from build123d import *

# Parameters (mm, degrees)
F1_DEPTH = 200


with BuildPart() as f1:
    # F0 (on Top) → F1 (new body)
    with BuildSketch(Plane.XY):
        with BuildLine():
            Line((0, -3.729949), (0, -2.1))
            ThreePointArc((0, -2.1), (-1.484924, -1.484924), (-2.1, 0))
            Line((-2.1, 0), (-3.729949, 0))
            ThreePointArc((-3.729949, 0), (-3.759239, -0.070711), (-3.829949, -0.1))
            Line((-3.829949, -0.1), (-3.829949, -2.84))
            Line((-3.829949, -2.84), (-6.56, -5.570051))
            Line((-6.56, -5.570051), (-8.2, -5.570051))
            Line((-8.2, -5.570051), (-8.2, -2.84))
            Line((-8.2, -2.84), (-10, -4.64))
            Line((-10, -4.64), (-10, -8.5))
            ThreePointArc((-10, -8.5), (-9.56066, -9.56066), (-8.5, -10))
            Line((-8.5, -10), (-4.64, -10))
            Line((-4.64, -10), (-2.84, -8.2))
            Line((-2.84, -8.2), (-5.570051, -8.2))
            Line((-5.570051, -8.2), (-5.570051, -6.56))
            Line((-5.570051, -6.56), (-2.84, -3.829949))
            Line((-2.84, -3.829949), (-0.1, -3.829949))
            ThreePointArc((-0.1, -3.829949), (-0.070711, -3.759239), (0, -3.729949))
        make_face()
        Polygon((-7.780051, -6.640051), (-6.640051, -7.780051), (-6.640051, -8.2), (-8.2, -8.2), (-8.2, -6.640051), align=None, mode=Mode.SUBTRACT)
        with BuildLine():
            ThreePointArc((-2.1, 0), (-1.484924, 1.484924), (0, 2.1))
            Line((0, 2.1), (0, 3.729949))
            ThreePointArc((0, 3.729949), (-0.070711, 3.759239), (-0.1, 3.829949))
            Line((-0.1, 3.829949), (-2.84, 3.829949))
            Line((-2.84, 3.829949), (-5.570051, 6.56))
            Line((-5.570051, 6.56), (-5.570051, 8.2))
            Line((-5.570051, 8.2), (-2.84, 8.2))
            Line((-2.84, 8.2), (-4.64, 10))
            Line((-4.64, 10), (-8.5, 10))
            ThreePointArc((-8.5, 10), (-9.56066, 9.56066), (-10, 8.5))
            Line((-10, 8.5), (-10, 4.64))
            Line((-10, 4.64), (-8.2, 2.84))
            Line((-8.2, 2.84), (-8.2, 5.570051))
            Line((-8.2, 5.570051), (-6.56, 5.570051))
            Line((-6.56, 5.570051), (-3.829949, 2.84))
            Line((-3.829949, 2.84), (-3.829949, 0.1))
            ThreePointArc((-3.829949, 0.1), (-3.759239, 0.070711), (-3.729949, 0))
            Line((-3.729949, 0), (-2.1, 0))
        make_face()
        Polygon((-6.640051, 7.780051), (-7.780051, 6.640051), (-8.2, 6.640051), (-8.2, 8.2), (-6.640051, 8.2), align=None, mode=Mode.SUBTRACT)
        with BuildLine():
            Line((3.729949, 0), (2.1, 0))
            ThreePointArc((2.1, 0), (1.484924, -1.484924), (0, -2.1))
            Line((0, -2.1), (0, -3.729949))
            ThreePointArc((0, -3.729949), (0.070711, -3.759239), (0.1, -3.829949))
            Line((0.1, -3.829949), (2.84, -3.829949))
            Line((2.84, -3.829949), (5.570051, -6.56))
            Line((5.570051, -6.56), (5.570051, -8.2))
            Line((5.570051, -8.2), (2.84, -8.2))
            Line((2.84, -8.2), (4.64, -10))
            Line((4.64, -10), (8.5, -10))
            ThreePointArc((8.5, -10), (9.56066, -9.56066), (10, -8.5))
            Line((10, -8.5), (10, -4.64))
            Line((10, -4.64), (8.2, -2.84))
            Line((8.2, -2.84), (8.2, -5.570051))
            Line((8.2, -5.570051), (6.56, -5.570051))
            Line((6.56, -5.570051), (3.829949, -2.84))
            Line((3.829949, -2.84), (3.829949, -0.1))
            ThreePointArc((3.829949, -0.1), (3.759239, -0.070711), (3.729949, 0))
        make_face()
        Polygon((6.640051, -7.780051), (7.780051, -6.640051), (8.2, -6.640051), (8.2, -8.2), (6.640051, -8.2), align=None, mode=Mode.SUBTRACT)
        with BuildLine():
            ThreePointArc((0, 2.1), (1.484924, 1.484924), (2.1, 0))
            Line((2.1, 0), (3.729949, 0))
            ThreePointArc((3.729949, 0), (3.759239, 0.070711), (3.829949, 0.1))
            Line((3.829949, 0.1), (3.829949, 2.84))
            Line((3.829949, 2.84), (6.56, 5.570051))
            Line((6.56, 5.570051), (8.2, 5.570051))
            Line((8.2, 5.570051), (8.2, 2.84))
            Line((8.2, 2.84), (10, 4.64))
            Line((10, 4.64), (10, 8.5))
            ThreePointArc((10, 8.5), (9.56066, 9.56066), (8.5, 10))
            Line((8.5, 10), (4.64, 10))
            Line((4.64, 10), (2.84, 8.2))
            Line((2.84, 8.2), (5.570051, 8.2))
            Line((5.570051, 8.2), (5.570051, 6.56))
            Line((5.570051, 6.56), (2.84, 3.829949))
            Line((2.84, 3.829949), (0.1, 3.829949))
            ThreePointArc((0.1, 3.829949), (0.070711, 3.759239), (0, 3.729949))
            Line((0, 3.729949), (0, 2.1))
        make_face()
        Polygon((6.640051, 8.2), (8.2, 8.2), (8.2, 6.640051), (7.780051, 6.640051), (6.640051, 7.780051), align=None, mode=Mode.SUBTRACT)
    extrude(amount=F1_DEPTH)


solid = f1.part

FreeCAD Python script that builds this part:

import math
import FreeCAD as App
import Part
import Sketcher

V = App.Vector
Q = App.Units.Quantity

doc = App.newDocument("Part")
body = doc.addObject("PartDesign::Body", "Body")

# Sketch on XY plane
sketch1 = body.newObject("Sketcher::SketchObject", "Sketch")
sketch1.AttachmentSupport = (doc.getObject("XY_Plane"), [""])
sketch1.MapMode = "FlatFace"
sketch1.addGeometry([
    Part.ArcOfCircle(Part.Circle(V(0, -3.83, 0), V(0, 0, 1), 0.1), math.radians(90), math.radians(180)),  # 0
    Part.ArcOfCircle(Part.Circle(V(0, -3.83, 0), V(0, 0, 1), 0.1), math.radians(0), math.radians(90)),  # 1
    Part.LineSegment(V(0.1, -3.83, 0), V(2.84, -3.83, 0)),  # 2
    Part.LineSegment(V(2.84, -3.83, 0), V(5.57, -6.56, 0)),  # 3
    Part.LineSegment(V(5.57, -6.56, 0), V(5.57, -8.2, 0)),  # 4
    Part.LineSegment(V(5.57, -8.2, 0), V(2.84, -8.2, 0)),  # 5
    Part.LineSegment(V(2.84, -8.2, 0), V(4.64, -10, 0)),  # 6
    Part.LineSegment(V(4.64, -10, 0), V(8.5, -10, 0)),  # 7
    Part.ArcOfCircle(Part.Circle(V(8.5, -8.5, 0), V(0, 0, 1), 1.5), math.radians(-90), math.radians(0)),  # 8
    Part.LineSegment(V(10, -8.5, 0), V(10, -4.64, 0)),  # 9
    Part.LineSegment(V(10, -4.64, 0), V(8.2, -2.84, 0)),  # 10
    Part.LineSegment(V(8.2, -2.84, 0), V(8.2, -5.57, 0)),  # 11
    Part.LineSegment(V(8.2, -5.57, 0), V(6.56, -5.57, 0)),  # 12
    Part.LineSegment(V(6.56, -5.57, 0), V(3.83, -2.84, 0)),  # 13
    Part.LineSegment(V(3.83, -2.84, 0), V(3.83, -0.1, 0)),  # 14
    Part.ArcOfCircle(Part.Circle(V(3.83, 0, 0), V(0, 0, 1), 0.1), math.radians(-180), math.radians(-90)),  # 15
    Part.ArcOfCircle(Part.Circle(V(3.83, 0, 0), V(0, 0, 1), 0.1), math.radians(90), math.radians(180)),  # 16
    Part.LineSegment(V(3.83, 0.1, 0), V(3.83, 2.84, 0)),  # 17
    Part.LineSegment(V(3.83, 2.84, 0), V(6.56, 5.57, 0)),  # 18
    Part.LineSegment(V(6.56, 5.57, 0), V(8.2, 5.57, 0)),  # 19
    Part.LineSegment(V(8.2, 5.57, 0), V(8.2, 2.84, 0)),  # 20
    Part.LineSegment(V(8.2, 2.84, 0), V(10, 4.64, 0)),  # 21
    Part.LineSegment(V(10, 4.64, 0), V(10, 8.5, 0)),  # 22
    Part.ArcOfCircle(Part.Circle(V(8.5, 8.5, 0), V(0, 0, 1), 1.5), math.radians(0), math.radians(90)),  # 23
    Part.LineSegment(V(8.5, 10, 0), V(4.64, 10, 0)),  # 24
    Part.LineSegment(V(4.64, 10, 0), V(2.84, 8.2, 0)),  # 25
    Part.LineSegment(V(2.84, 8.2, 0), V(5.57, 8.2, 0)),  # 26
    Part.LineSegment(V(5.57, 8.2, 0), V(5.57, 6.56, 0)),  # 27
    Part.LineSegment(V(5.57, 6.56, 0), V(2.84, 3.83, 0)),  # 28
    Part.LineSegment(V(2.84, 3.83, 0), V(0.1, 3.83, 0)),  # 29
    Part.ArcOfCircle(Part.Circle(V(0, 3.83, 0), V(0, 0, 1), 0.1), math.radians(-90), math.radians(0)),  # 30
    Part.ArcOfCircle(Part.Circle(V(0, 3.83, 0), V(0, 0, 1), 0.1), math.radians(-180), math.radians(-90)),  # 31
    Part.LineSegment(V(-0.1, 3.83, 0), V(-2.84, 3.83, 0)),  # 32
    Part.LineSegment(V(-2.84, 3.83, 0), V(-5.57, 6.56, 0)),  # 33
    Part.LineSegment(V(-5.57, 6.56, 0), V(-5.57, 8.2, 0)),  # 34
    Part.LineSegment(V(-5.57, 8.2, 0), V(-2.84, 8.2, 0)),  # 35
    Part.LineSegment(V(-2.84, 8.2, 0), V(-4.64, 10, 0)),  # 36
    Part.LineSegment(V(-4.64, 10, 0), V(-8.5, 10, 0)),  # 37
    Part.ArcOfCircle(Part.Circle(V(-8.5, 8.5, 0), V(0, 0, 1), 1.5), math.radians(90), math.radians(180)),  # 38
    Part.LineSegment(V(-10, 8.5, 0), V(-10, 4.64, 0)),  # 39
    Part.LineSegment(V(-10, 4.64, 0), V(-8.2, 2.84, 0)),  # 40
    Part.LineSegment(V(-8.2, 2.84, 0), V(-8.2, 5.57, 0)),  # 41
    Part.LineSegment(V(-8.2, 5.57, 0), V(-6.56, 5.57, 0)),  # 42
    Part.LineSegment(V(-6.56, 5.57, 0), V(-3.83, 2.84, 0)),  # 43
    Part.LineSegment(V(-3.83, 2.84, 0), V(-3.83, 0.1, 0)),  # 44
    Part.ArcOfCircle(Part.Circle(V(-3.83, 0, 0), V(0, 0, 1), 0.1), math.radians(0), math.radians(90)),  # 45
    Part.ArcOfCircle(Part.Circle(V(-3.83, 0, 0), V(0, 0, 1), 0.1), math.radians(-90), math.radians(0)),  # 46
    Part.LineSegment(V(-3.83, -0.1, 0), V(-3.83, -2.84, 0)),  # 47
    Part.LineSegment(V(-3.83, -2.84, 0), V(-6.56, -5.57, 0)),  # 48
    Part.LineSegment(V(-6.56, -5.57, 0), V(-8.2, -5.57, 0)),  # 49
    Part.LineSegment(V(-8.2, -5.57, 0), V(-8.2, -2.84, 0)),  # 50
    Part.LineSegment(V(-8.2, -2.84, 0), V(-10, -4.64, 0)),  # 51
    Part.LineSegment(V(-10, -4.64, 0), V(-10, -8.5, 0)),  # 52
    Part.ArcOfCircle(Part.Circle(V(-8.5, -8.5, 0), V(0, 0, 1), 1.5), math.radians(-180), math.radians(-90)),  # 53
    Part.LineSegment(V(-8.5, -10, 0), V(-4.64, -10, 0)),  # 54
    Part.LineSegment(V(-4.64, -10, 0), V(-2.84, -8.2, 0)),  # 55
    Part.LineSegment(V(-2.84, -8.2, 0), V(-5.57, -8.2, 0)),  # 56
    Part.LineSegment(V(-5.57, -8.2, 0), V(-5.57, -6.56, 0)),  # 57
    Part.LineSegment(V(-5.57, -6.56, 0), V(-2.84, -3.83, 0)),  # 58
    Part.LineSegment(V(-2.84, -3.83, 0), V(-0.1, -3.83, 0)),  # 59
    Part.LineSegment(V(-8.2, -6.64, 0), V(-7.78, -6.64, 0)),  # 60
    Part.LineSegment(V(-7.78, -6.64, 0), V(-6.64, -7.78, 0)),  # 61
    Part.LineSegment(V(-6.64, -7.78, 0), V(-6.64, -8.2, 0)),  # 62
    Part.LineSegment(V(-6.64, -8.2, 0), V(-8.2, -8.2, 0)),  # 63
    Part.LineSegment(V(-8.2, -8.2, 0), V(-8.2, -6.64, 0)),  # 64
    Part.LineSegment(V(6.64, -8.2, 0), V(6.64, -7.78, 0)),  # 65
    Part.LineSegment(V(6.64, -7.78, 0), V(7.78, -6.64, 0)),  # 66
    Part.LineSegment(V(7.78, -6.64, 0), V(8.2, -6.64, 0)),  # 67
    Part.LineSegment(V(8.2, -6.64, 0), V(8.2, -8.2, 0)),  # 68
    Part.LineSegment(V(8.2, -8.2, 0), V(6.64, -8.2, 0)),  # 69
    Part.LineSegment(V(-6.64, 8.2, 0), V(-6.64, 7.78, 0)),  # 70
    Part.LineSegment(V(-6.64, 7.78, 0), V(-7.78, 6.64, 0)),  # 71
    Part.LineSegment(V(-7.78, 6.64, 0), V(-8.2, 6.64, 0)),  # 72
    Part.LineSegment(V(-8.2, 6.64, 0), V(-8.2, 8.2, 0)),  # 73
    Part.LineSegment(V(-8.2, 8.2, 0), V(-6.64, 8.2, 0)),  # 74
    Part.ArcOfCircle(Part.Circle(V(0, 0, 0), V(0, 0, 1), 2.1), math.radians(-90), math.radians(0)),  # 75
    Part.ArcOfCircle(Part.Circle(V(0, 0, 0), V(0, 0, 1), 2.1), math.radians(-180), math.radians(-90)),  # 76
    Part.ArcOfCircle(Part.Circle(V(0, 0, 0), V(0, 0, 1), 2.1), math.radians(90), math.radians(180)),  # 77
    Part.ArcOfCircle(Part.Circle(V(0, 0, 0), V(0, 0, 1), 2.1), math.radians(0), math.radians(90)),  # 78
    Part.LineSegment(V(6.64, 7.78, 0), V(6.64, 8.2, 0)),  # 79
    Part.LineSegment(V(6.64, 8.2, 0), V(8.2, 8.2, 0)),  # 80
    Part.LineSegment(V(8.2, 8.2, 0), V(8.2, 6.64, 0)),  # 81
    Part.LineSegment(V(8.2, 6.64, 0), V(7.78, 6.64, 0)),  # 82
    Part.LineSegment(V(7.78, 6.64, 0), V(6.64, 7.78, 0)),  # 83
], False)
sketch1.addConstraint([
    Sketcher.Constraint("Coincident", 0, 1, 1, 2),
    Sketcher.Constraint("Coincident", 1, 1, 2, 1),
    Sketcher.Constraint("Coincident", 2, 2, 3, 1),
    Sketcher.Constraint("Coincident", 3, 2, 4, 1),
    Sketcher.Constraint("Coincident", 4, 2, 5, 1),
    Sketcher.Constraint("Coincident", 5, 2, 6, 1),
    Sketcher.Constraint("Coincident", 6, 2, 7, 1),
    Sketcher.Constraint("Tangent", 7, 2, 8, 1),
    Sketcher.Constraint("Tangent", 8, 2, 9, 1),
    Sketcher.Constraint("Coincident", 9, 2, 10, 1),
    Sketcher.Constraint("Coincident", 10, 2, 11, 1),
    Sketcher.Constraint("Coincident", 11, 2, 12, 1),
    Sketcher.Constraint("Coincident", 12, 2, 13, 1),
    Sketcher.Constraint("Coincident", 13, 2, 14, 1),
    Sketcher.Constraint("Coincident", 14, 2, 15, 2),
    Sketcher.Constraint("Coincident", 15, 1, 16, 2),
    Sketcher.Constraint("Coincident", 16, 1, 17, 1),
    Sketcher.Constraint("Coincident", 17, 2, 18, 1),
    Sketcher.Constraint("Coincident", 18, 2, 19, 1),
    Sketcher.Constraint("Coincident", 19, 2, 20, 1),
    Sketcher.Constraint("Coincident", 20, 2, 21, 1),
    Sketcher.Constraint("Coincident", 21, 2, 22, 1),
    Sketcher.Constraint("Tangent", 22, 2, 23, 1),
    Sketcher.Constraint("Tangent", 23, 2, 24, 1),
    Sketcher.Constraint("Coincident", 24, 2, 25, 1),
    Sketcher.Constraint("Coincident", 25, 2, 26, 1),
    Sketcher.Constraint("Coincident", 26, 2, 27, 1),
    Sketcher.Constraint("Coincident", 27, 2, 28, 1),
    Sketcher.Constraint("Coincident", 28, 2, 29, 1),
    Sketcher.Constraint("Coincident", 29, 2, 30, 2),
    Sketcher.Constraint("Coincident", 30, 1, 31, 2),
    Sketcher.Constraint("Coincident", 31, 1, 32, 1),
    Sketcher.Constraint("Coincident", 32, 2, 33, 1),
    Sketcher.Constraint("Coincident", 33, 2, 34, 1),
    Sketcher.Constraint("Coincident", 34, 2, 35, 1),
    Sketcher.Constraint("Coincident", 35, 2, 36, 1),
    Sketcher.Constraint("Coincident", 36, 2, 37, 1),
    Sketcher.Constraint("Tangent", 37, 2, 38, 1),
    Sketcher.Constraint("Tangent", 38, 2, 39, 1),
    Sketcher.Constraint("Coincident", 39, 2, 40, 1),
    Sketcher.Constraint("Coincident", 40, 2, 41, 1),
    Sketcher.Constraint("Coincident", 41, 2, 42, 1),
    Sketcher.Constraint("Coincident", 42, 2, 43, 1),
    Sketcher.Constraint("Coincident", 43, 2, 44, 1),
    Sketcher.Constraint("Coincident", 44, 2, 45, 2),
    Sketcher.Constraint("Coincident", 45, 1, 46, 2),
    Sketcher.Constraint("Coincident", 46, 1, 47, 1),
    Sketcher.Constraint("Coincident", 47, 2, 48, 1),
    Sketcher.Constraint("Coincident", 48, 2, 49, 1),
    Sketcher.Constraint("Coincident", 49, 2, 50, 1),
    Sketcher.Constraint("Coincident", 50, 2, 51, 1),
    Sketcher.Constraint("Coincident", 51, 2, 52, 1),
    Sketcher.Constraint("Tangent", 52, 2, 53, 1),
    Sketcher.Constraint("Tangent", 53, 2, 54, 1),
    Sketcher.Constraint("Coincident", 54, 2, 55, 1),
    Sketcher.Constraint("Coincident", 55, 2, 56, 1),
    Sketcher.Constraint("Coincident", 56, 2, 57, 1),
    Sketcher.Constraint("Coincident", 57, 2, 58, 1),
    Sketcher.Constraint("Coincident", 58, 2, 59, 1),
    Sketcher.Constraint("Coincident", 59, 2, 0, 2),
    Sketcher.Constraint("Coincident", 60, 2, 61, 1),
    Sketcher.Constraint("Coincident", 61, 2, 62, 1),
    Sketcher.Constraint("Coincident", 62, 2, 63, 1),
    Sketcher.Constraint("Coincident", 63, 2, 64, 1),
    Sketcher.Constraint("Coincident", 64, 2, 60, 1),
    Sketcher.Constraint("Coincident", 65, 2, 66, 1),
    Sketcher.Constraint("Coincident", 66, 2, 67, 1),
    Sketcher.Constraint("Coincident", 67, 2, 68, 1),
    Sketcher.Constraint("Coincident", 68, 2, 69, 1),
    Sketcher.Constraint("Coincident", 69, 2, 65, 1),
    Sketcher.Constraint("Coincident", 70, 2, 71, 1),
    Sketcher.Constraint("Coincident", 71, 2, 72, 1),
    Sketcher.Constraint("Coincident", 72, 2, 73, 1),
    Sketcher.Constraint("Coincident", 73, 2, 74, 1),
    Sketcher.Constraint("Coincident", 74, 2, 70, 1),
    Sketcher.Constraint("Tangent", 75, 1, 76, 2),
    Sketcher.Constraint("Tangent", 76, 1, 77, 2),
    Sketcher.Constraint("Tangent", 77, 1, 78, 2),
    Sketcher.Constraint("Tangent", 78, 1, 75, 2),
    Sketcher.Constraint("Coincident", 79, 2, 80, 1),
    Sketcher.Constraint("Coincident", 80, 2, 81, 1),
    Sketcher.Constraint("Coincident", 81, 2, 82, 1),
    Sketcher.Constraint("Coincident", 82, 2, 83, 1),
    Sketcher.Constraint("Coincident", 83, 2, 79, 1),
    Sketcher.Constraint("Horizontal", 2),
    Sketcher.Constraint("Vertical", 4),
    Sketcher.Constraint("Horizontal", 5),
    Sketcher.Constraint("Horizontal", 7),
    Sketcher.Constraint("Vertical", 9),
    Sketcher.Constraint("Vertical", 11),
    Sketcher.Constraint("Horizontal", 12),
    Sketcher.Constraint("Vertical", 14),
    Sketcher.Constraint("Vertical", 17),
    Sketcher.Constraint("Horizontal", 19),
    Sketcher.Constraint("Vertical", 20),
    Sketcher.Constraint("Vertical", 22),
    Sketcher.Constraint("Horizontal", 24),
    Sketcher.Constraint("Horizontal", 26),
    Sketcher.Constraint("Vertical", 27),
    Sketcher.Constraint("Horizontal", 29),
    Sketcher.Constraint("Horizontal", 32),
    Sketcher.Constraint("Vertical", 34),
    Sketcher.Constraint("Horizontal", 35),
    Sketcher.Constraint("Horizontal", 37),
    Sketcher.Constraint("Vertical", 39),
    Sketcher.Constraint("Vertical", 41),
    Sketcher.Constraint("Horizontal", 42),
    Sketcher.Constraint("Vertical", 44),
    Sketcher.Constraint("Vertical", 47),
    Sketcher.Constraint("Horizontal", 49),
    Sketcher.Constraint("Vertical", 50),
    Sketcher.Constraint("Vertical", 52),
    Sketcher.Constraint("Horizontal", 54),
    Sketcher.Constraint("Horizontal", 56),
    Sketcher.Constraint("Vertical", 57),
    Sketcher.Constraint("Horizontal", 59),
    Sketcher.Constraint("Horizontal", 60),
    Sketcher.Constraint("Vertical", 62),
    Sketcher.Constraint("Horizontal", 63),
    Sketcher.Constraint("Vertical", 64),
    Sketcher.Constraint("Vertical", 65),
    Sketcher.Constraint("Horizontal", 67),
    Sketcher.Constraint("Vertical", 68),
    Sketcher.Constraint("Horizontal", 69),
    Sketcher.Constraint("Vertical", 70),
    Sketcher.Constraint("Horizontal", 72),
    Sketcher.Constraint("Vertical", 73),
    Sketcher.Constraint("Horizontal", 74),
    Sketcher.Constraint("Vertical", 79),
    Sketcher.Constraint("Horizontal", 80),
    Sketcher.Constraint("Vertical", 81),
    Sketcher.Constraint("Horizontal", 82),
    Sketcher.Constraint("Coincident", 75, 3, -1, 1),
    Sketcher.Constraint("Coincident", 1, 3, 0, 3),
    Sketcher.Constraint("Coincident", 16, 3, 15, 3),
    Sketcher.Constraint("Coincident", 31, 3, 30, 3),
    Sketcher.Constraint("Coincident", 46, 3, 45, 3),
    Sketcher.Constraint("Equal", 1, 15),
    Sketcher.Constraint("Equal", 8, 23),
    Sketcher.Constraint("Equal", 16, 30),
    Sketcher.Constraint("Equal", 23, 38),
    Sketcher.Constraint("Equal", 31, 45),
    Sketcher.Constraint("Equal", 38, 53),
    Sketcher.Constraint("Equal", 75, 76),
    Sketcher.Constraint("Symmetric", 0, 3, 30, 3, -1, 1),
    Sketcher.Constraint("Symmetric", 8, 3, 38, 3, -1, 1),
    Sketcher.Constraint("Symmetric", 15, 3, 45, 3, -1, 1),
    Sketcher.Constraint("Symmetric", 23, 3, 53, 3, -1, 1),
    Sketcher.Constraint("Symmetric", 2, 2, 32, 2, -1, 1),
    Sketcher.Constraint("Symmetric", 3, 2, 33, 2, -1, 1),
    Sketcher.Constraint("Symmetric", 5, 2, 35, 2, -1, 1),
    Sketcher.Constraint("Symmetric", 10, 2, 40, 2, -1, 1),
    Sketcher.Constraint("Symmetric", 12, 2, 42, 2, -1, 1),
    Sketcher.Constraint("Symmetric", 13, 2, 43, 2, -1, 1),
    Sketcher.Constraint("Symmetric", 17, 2, 47, 2, -1, 1),
    Sketcher.Constraint("Symmetric", 18, 2, 48, 2, -1, 1),
    Sketcher.Constraint("Symmetric", 20, 2, 50, 2, -1, 1),
    Sketcher.Constraint("Symmetric", 25, 2, 55, 2, -1, 1),
    Sketcher.Constraint("Symmetric", 27, 2, 57, 2, -1, 1),
    Sketcher.Constraint("Symmetric", 28, 2, 58, 2, -1, 1),
    Sketcher.Constraint("Symmetric", 65, 2, 70, 2, -1, 1),
    Sketcher.Constraint("Symmetric", 66, 2, 71, 2, -1, 1),
    Sketcher.Constraint("Symmetric", 68, 2, 73, 2, -1, 1),
    Sketcher.Constraint("Symmetric", 62, 2, 79, 2, -1, 1),
    Sketcher.Constraint("Symmetric", 64, 2, 81, 2, -1, 1),
    Sketcher.Constraint("Symmetric", 23, 3, 38, 3, -2),
    Sketcher.Constraint("Symmetric", 29, 2, 31, 1, -2),
    Sketcher.Constraint("Symmetric", 27, 2, 33, 2, -2),
    Sketcher.Constraint("Symmetric", 25, 2, 35, 2, -2),
    Sketcher.Constraint("Symmetric", 20, 2, 40, 2, -2),
    Sketcher.Constraint("Symmetric", 18, 2, 42, 2, -2),
    Sketcher.Constraint("Symmetric", 17, 2, 43, 2, -2),
    Sketcher.Constraint("Symmetric", 61, 2, 65, 2, -2),
    Sketcher.Constraint("Symmetric", 60, 2, 66, 2, -2),
    Sketcher.Constraint("Symmetric", 63, 2, 68, 2, -2),
    Sketcher.Constraint("PointOnObject", 15, 3, -1),
    Sketcher.Constraint("PointOnObject", 0, 1, -2),
    Sketcher.Constraint("PointOnObject", 15, 1, -1),
    Sketcher.Constraint("PointOnObject", 30, 1, -2),
    Sketcher.Constraint("PointOnObject", 45, 1, -1),
    Sketcher.Constraint("PointOnObject", 75, 1, -2),
    Sketcher.Constraint("PointOnObject", 76, 1, -1),
    Sketcher.Constraint("PointOnObject", 77, 1, -2),
    Sketcher.Constraint("PointOnObject", 78, 1, -1),
    Sketcher.Constraint("Parallel", 3, 6),
    Sketcher.Constraint("Parallel", 6, 10),
    Sketcher.Constraint("Parallel", 10, 13),
    Sketcher.Constraint("Perpendicular", 13, 18),
    Sketcher.Constraint("Parallel", 18, 21),
    Sketcher.Constraint("Parallel", 21, 25),
    Sketcher.Constraint("Parallel", 25, 28),
    Sketcher.Constraint("Parallel", 33, 36),
    Sketcher.Constraint("Parallel", 36, 40),
    Sketcher.Constraint("Parallel", 48, 51),
    Sketcher.Constraint("Parallel", 51, 55),
    Sketcher.Constraint("Perpendicular", 58, 61),
    Sketcher.Constraint("Perpendicular", 71, 83),
    Sketcher.Constraint("Horizontal", 0, 3, 1, 1),
    Sketcher.Constraint("Horizontal", 10, 2, 13, 2),
    Sketcher.Constraint("Horizontal", 56, 2, 62, 2),
    Sketcher.Constraint("Horizontal", 70, 2, 83, 2),
    Sketcher.Constraint("Vertical", 2, 2, 5, 2),
    Sketcher.Constraint("Vertical", 16, 3, 13, 2),
    Sketcher.Constraint("Vertical", 50, 2, 63, 2),
    Sketcher.Constraint("Equal", 49, 4),
    Sketcher.Constraint("Equal", 54, 9),
    Sketcher.Constraint("Equal", 56, 11),
    Sketcher.Constraint("Equal", 59, 14),
    Sketcher.Constraint("Equal", 82, 62),
    Sketcher.Constraint("Equal", 6, 10),
    Sketcher.Constraint("Radius", 0, Q("0.100001 mm")),
    Sketcher.Constraint("Radius", 8, Q("1.500001 mm")),
    Sketcher.Constraint("Radius", 75, Q("2.100001 mm")),
    Sketcher.Constraint("DistanceY", 6, 2, -1, 1, Q("10 mm")),
    Sketcher.Constraint("DistanceX", 2, 1, 2, 2, Q("2.74 mm")),
    Sketcher.Constraint("DistanceX", 7, 1, 7, 2, Q("3.86 mm")),
    Sketcher.Constraint("DistanceX", 12, 2, 12, 1, Q("1.64 mm")),
    Sketcher.Constraint("DistanceX", 5, 2, 5, 1, Q("2.730051 mm")),
    Sketcher.Constraint("DistanceX", 60, 1, 60, 2, Q("0.419949 mm")),
    Sketcher.Constraint("DistanceX", 63, 2, 63, 1, Q("1.559949 mm")),
])
pad1 = body.newObject("PartDesign::Pad", "Pad")
pad1.Profile = sketch1
pad1.Length = 200

doc.recompute()
